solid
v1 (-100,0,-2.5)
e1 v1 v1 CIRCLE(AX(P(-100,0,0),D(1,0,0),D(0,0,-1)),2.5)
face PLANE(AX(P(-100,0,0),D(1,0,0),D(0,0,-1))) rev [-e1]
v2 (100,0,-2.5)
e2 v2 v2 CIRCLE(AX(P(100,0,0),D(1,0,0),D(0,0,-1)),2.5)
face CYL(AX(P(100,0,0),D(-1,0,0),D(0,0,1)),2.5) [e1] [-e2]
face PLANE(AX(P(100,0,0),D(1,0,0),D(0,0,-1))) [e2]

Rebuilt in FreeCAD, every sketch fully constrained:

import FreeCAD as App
import Part
import Sketcher
Q = App.Units.Quantity

doc = App.newDocument("Part")
body = doc.addObject("PartDesign::Body", "Body")

# Sketch on YZ plane
sketch1 = body.newObject("Sketcher::SketchObject", "Sketch")
sketch1.AttachmentSupport = (doc.getObject("YZ_Plane"), [""])
sketch1.MapMode = "FlatFace"
sketch1.addGeometry(Part.Circle(App.Vector(0, 0, 0), App.Vector(0, 0, 1), 2.5), False)
sketch1.addConstraint(Sketcher.Constraint("Coincident", 0, 3, -1, 1))
sketch1.addConstraint(Sketcher.Constraint("Diameter", 0, Q("5 mm")))
pad1 = body.newObject("PartDesign::Pad", "Pad")
pad1.Profile = sketch1
pad1.Length = 200
pad1.Midplane = True

doc.recompute()
